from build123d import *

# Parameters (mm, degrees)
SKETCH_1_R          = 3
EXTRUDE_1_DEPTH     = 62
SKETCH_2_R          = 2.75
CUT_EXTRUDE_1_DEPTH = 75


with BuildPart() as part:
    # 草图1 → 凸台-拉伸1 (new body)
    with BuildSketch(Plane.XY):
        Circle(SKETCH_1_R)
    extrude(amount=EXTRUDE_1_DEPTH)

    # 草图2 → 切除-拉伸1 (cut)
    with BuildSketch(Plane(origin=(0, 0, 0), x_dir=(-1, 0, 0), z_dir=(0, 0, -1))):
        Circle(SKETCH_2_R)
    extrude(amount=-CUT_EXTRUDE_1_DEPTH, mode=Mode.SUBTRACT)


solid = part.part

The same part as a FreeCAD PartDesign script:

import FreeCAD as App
import Part
import Sketcher

V = App.Vector

doc = App.newDocument("Part")
body = doc.addObject("PartDesign::Body", "Body")

# Sketch on XY plane
sketch1 = body.newObject("Sketcher::SketchObject", "Sketch")
sketch1.AttachmentSupport = (doc.getObject("XY_Plane"), [""])
sketch1.MapMode = "FlatFace"
sketch1.addGeometry(Part.Circle(V(0, 0, 0), V(0, 0, 1), 3), False)
sketch1.addConstraint([
    Sketcher.Constraint("Coincident", 0, 3, -1, 1),
    Sketcher.Constraint("Diameter", 0, 6.0),
])
pad1 = body.newObject("PartDesign::Pad", "Pad")
pad1.Profile = sketch1
pad1.Length = 62

# Sketch on XY plane
sketch2 = body.newObject("Sketcher::SketchObject", "Sketch001")
sketch2.AttachmentSupport = (doc.getObject("XY_Plane"), [""])
sketch2.MapMode = "FlatFace"
sketch2.addGeometry(Part.Circle(V(0, 0, 0), V(0, 0, 1), 2.8), False)
sketch2.addConstraint([
    Sketcher.Constraint("Coincident", 0, 3, -1, 1),
    Sketcher.Constraint("Diameter", 0, 5.5),
])
pocket1 = body.newObject("PartDesign::Pocket", "Pocket")
pocket1.Profile = sketch2
pocket1.Length = 75
pocket1.Reversed = True

doc.recompute()
